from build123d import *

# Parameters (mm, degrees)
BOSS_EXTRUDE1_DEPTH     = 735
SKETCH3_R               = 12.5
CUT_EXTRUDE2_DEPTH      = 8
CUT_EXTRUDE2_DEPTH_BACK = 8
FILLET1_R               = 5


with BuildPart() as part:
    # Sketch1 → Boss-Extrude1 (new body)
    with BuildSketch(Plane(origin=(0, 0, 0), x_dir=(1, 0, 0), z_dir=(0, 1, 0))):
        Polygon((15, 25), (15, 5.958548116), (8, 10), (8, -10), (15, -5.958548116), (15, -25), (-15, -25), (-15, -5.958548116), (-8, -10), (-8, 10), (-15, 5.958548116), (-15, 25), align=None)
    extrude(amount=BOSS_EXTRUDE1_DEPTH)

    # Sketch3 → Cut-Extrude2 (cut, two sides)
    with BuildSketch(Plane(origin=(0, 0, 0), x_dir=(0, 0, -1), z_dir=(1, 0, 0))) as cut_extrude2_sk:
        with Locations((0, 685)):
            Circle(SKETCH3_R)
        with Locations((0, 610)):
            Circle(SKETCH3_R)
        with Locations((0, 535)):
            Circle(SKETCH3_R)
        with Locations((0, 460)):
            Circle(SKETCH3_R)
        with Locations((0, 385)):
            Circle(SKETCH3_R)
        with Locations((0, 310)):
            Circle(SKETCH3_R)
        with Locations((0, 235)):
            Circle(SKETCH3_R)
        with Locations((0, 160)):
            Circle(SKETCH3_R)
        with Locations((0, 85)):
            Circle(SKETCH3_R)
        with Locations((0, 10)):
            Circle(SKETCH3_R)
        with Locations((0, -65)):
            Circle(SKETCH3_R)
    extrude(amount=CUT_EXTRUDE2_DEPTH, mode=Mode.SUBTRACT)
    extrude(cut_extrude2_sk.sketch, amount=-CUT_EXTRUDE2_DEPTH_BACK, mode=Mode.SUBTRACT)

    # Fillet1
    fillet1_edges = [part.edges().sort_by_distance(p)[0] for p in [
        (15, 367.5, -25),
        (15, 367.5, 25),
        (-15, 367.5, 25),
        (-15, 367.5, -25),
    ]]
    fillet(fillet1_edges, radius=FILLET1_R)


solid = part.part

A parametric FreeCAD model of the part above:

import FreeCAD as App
import Part
import Sketcher
from FreeCAD import Vector
Q = App.Units.Quantity


def edges_at(feature, points):
    """Names of the edges that pass closest to the given points."""
    edges = feature.Shape.Edges
    near = lambda p: min(range(len(edges)), key=lambda i: edges[i].distToShape(Part.Vertex(*p))[0])
    return sorted({f"Edge{near(p) + 1}" for p in points})

doc = App.newDocument("Part")
body = doc.addObject("PartDesign::Body", "Body")

sketch1 = body.newObject("Sketcher::SketchObject", "Sketch")
sketch1.AttachmentSupport = (doc.getObject("XZ_Plane"), [""])
sketch1.MapMode = "FlatFace"
sketch1.addGeometry([
    Part.LineSegment(Vector(15, -5.958548, 0), Vector(15, -25, 0)),
    Part.LineSegment(Vector(15, -25, 0), Vector(-15, -25, 0)),
    Part.LineSegment(Vector(-15, -25, 0), Vector(-15, -5.958548, 0)),
    Part.LineSegment(Vector(-15, -5.958548, 0), Vector(-8, -10, 0)),
    Part.LineSegment(Vector(-8, -10, 0), Vector(-8, 10, 0)),
    Part.LineSegment(Vector(-8, 10, 0), Vector(-15, 5.958548, 0)),
    Part.LineSegment(Vector(-15, 5.958548, 0), Vector(-15, 25, 0)),
    Part.LineSegment(Vector(-15, 25, 0), Vector(15, 25, 0)),
    Part.LineSegment(Vector(15, 25, 0), Vector(15, 5.958548, 0)),
    Part.LineSegment(Vector(15, 5.958548, 0), Vector(8, 10, 0)),
    Part.LineSegment(Vector(8, 10, 0), Vector(8, -10, 0)),
    Part.LineSegment(Vector(8, -10, 0), Vector(15, -5.958548, 0)),
], False)
sketch1.addConstraint([
    Sketcher.Constraint("Coincident", 0, 2, 1, 1),
    Sketcher.Constraint("Coincident", 1, 2, 2, 1),
    Sketcher.Constraint("Coincident", 2, 2, 3, 1),
    Sketcher.Constraint("Coincident", 3, 2, 4, 1),
    Sketcher.Constraint("Coincident", 4, 2, 5, 1),
    Sketcher.Constraint("Coincident", 5, 2, 6, 1),
    Sketcher.Constraint("Coincident", 6, 2, 7, 1),
    Sketcher.Constraint("Coincident", 7, 2, 8, 1),
    Sketcher.Constraint("Coincident", 8, 2, 9, 1),
    Sketcher.Constraint("Coincident", 9, 2, 10, 1),
    Sketcher.Constraint("Coincident", 10, 2, 11, 1),
    Sketcher.Constraint("Coincident", 11, 2, 0, 1),
    Sketcher.Constraint("Vertical", 0),
    Sketcher.Constraint("Horizontal", 1),
    Sketcher.Constraint("Vertical", 2),
    Sketcher.Constraint("Vertical", 4),
    Sketcher.Constraint("Vertical", 6),
    Sketcher.Constraint("Horizontal", 7),
    Sketcher.Constraint("Vertical", 8),
    Sketcher.Constraint("Vertical", 10),
    Sketcher.Constraint("Symmetric", 0, 2, 6, 2, -1, 1),
    Sketcher.Constraint("Symmetric", 2, 2, 8, 2, -1, 1),
    Sketcher.Constraint("Symmetric", 3, 2, 9, 2, -1, 1),
    Sketcher.Constraint("Symmetric", 5, 2, 8, 2, -2),
    Sketcher.Constraint("Parallel", 5, 11),
    Sketcher.Constraint("Horizontal", 4, 2, 9, 2),
    Sketcher.Constraint("Horizontal", 3, 2, 10, 2),
    Sketcher.Constraint("DistanceX", 1, 2, 1, 1, Q("30 mm")),
    Sketcher.Constraint("DistanceY", 4, 1, 4, 2, Q("20 mm")),
    Sketcher.Constraint("Angle", 3, Q("-30 deg")),
    Sketcher.Constraint("DistanceY", 0, 2, -1, 1, Q("25 mm")),
    Sketcher.Constraint("DistanceX", 3, 2, -1, 1, Q("8 mm")),
])
pad1 = body.newObject("PartDesign::Pad", "Pad")
pad1.Profile = sketch1
pad1.Length = 735
pad1.Reversed = True

sketch2 = body.newObject("Sketcher::SketchObject", "Sketch001")
sketch2.AttachmentSupport = (doc.getObject("YZ_Plane"), [""])
sketch2.MapMode = "FlatFace"
sketch2.addGeometry([
    Part.Circle(Vector(685, 0, 0), Vector(0, 0, 1), 12.5),
    Part.Circle(Vector(610, 0, 0), Vector(0, 0, 1), 12.5),
    Part.Circle(Vector(535, 0, 0), Vector(0, 0, 1), 12.5),
    Part.Circle(Vector(460, 0, 0), Vector(0, 0, 1), 12.5),
    Part.Circle(Vector(385, 0, 0), Vector(0, 0, 1), 12.5),
    Part.Circle(Vector(310, 0, 0), Vector(0, 0, 1), 12.5),
    Part.Circle(Vector(235, 0, 0), Vector(0, 0, 1), 12.5),
    Part.Circle(Vector(160, 0, 0), Vector(0, 0, 1), 12.5),
    Part.Circle(Vector(85, 0, 0), Vector(0, 0, 1), 12.5),
    Part.Circle(Vector(10, 0, 0), Vector(0, 0, 1), 12.5),
    Part.Circle(Vector(-65, 0, 0), Vector(0, 0, 1), 12.5),
], False)
sketch2.addConstraint([
    Sketcher.Constraint("Equal", 0, 1),
    Sketcher.Constraint("Equal", 1, 2),
    Sketcher.Constraint("Equal", 2, 3),
    Sketcher.Constraint("Equal", 3, 4),
    Sketcher.Constraint("Equal", 4, 5),
    Sketcher.Constraint("Equal", 5, 6),
    Sketcher.Constraint("Equal", 6, 7),
    Sketcher.Constraint("Equal", 7, 8),
    Sketcher.Constraint("Equal", 8, 9),
    Sketcher.Constraint("Equal", 9, 10),
    Sketcher.Constraint("PointOnObject", 0, 3, -1),
    Sketcher.Constraint("PointOnObject", 1, 3, -1),
    Sketcher.Constraint("PointOnObject", 2, 3, -1),
    Sketcher.Constraint("PointOnObject", 3, 3, -1),
    Sketcher.Constraint("PointOnObject", 4, 3, -1),
    Sketcher.Constraint("PointOnObject", 5, 3, -1),
    Sketcher.Constraint("PointOnObject", 6, 3, -1),
    Sketcher.Constraint("PointOnObject", 7, 3, -1),
    Sketcher.Constraint("PointOnObject", 8, 3, -1),
    Sketcher.Constraint("PointOnObject", 9, 3, -1),
    Sketcher.Constraint("PointOnObject", 10, 3, -1),
    Sketcher.Constraint("Diameter", 0, Q("25 mm")),
    Sketcher.Constraint("DistanceX", -1, 1, 0, 3, Q("685 mm")),
    Sketcher.Constraint("DistanceX", -1, 1, 1, 3, Q("610 mm")),
    Sketcher.Constraint("DistanceX", -1, 1, 2, 3, Q("535 mm")),
    Sketcher.Constraint("DistanceX", -1, 1, 3, 3, Q("460 mm")),
    Sketcher.Constraint("DistanceX", -1, 1, 4, 3, Q("385 mm")),
    Sketcher.Constraint("DistanceX", -1, 1, 5, 3, Q("310 mm")),
    Sketcher.Constraint("DistanceX", -1, 1, 6, 3, Q("235 mm")),
    Sketcher.Constraint("DistanceX", -1, 1, 7, 3, Q("160 mm")),
    Sketcher.Constraint("DistanceX", -1, 1, 8, 3, Q("85 mm")),
    Sketcher.Constraint("DistanceX", -1, 1, 9, 3, Q("10 mm")),
    Sketcher.Constraint("DistanceX", 10, 3, -1, 1, Q("65 mm")),
])
pocket1 = body.newObject("PartDesign::Pocket", "Pocket")
pocket1.Profile = sketch2
pocket1.Type = "TwoLengths"
pocket1.Length = 8
pocket1.Length2 = 8
pocket1.Reversed = True
doc.recompute()

fillet = body.newObject("PartDesign::Fillet", "Fillet")
fillet.Base = (pocket1, edges_at(pocket1, [
    (15, 367.5, -25),
    (15, 367.5, 25),
    (-15, 367.5, 25),
    (-15, 367.5, -25),
]))
fillet.Radius = 5

doc.recompute()
